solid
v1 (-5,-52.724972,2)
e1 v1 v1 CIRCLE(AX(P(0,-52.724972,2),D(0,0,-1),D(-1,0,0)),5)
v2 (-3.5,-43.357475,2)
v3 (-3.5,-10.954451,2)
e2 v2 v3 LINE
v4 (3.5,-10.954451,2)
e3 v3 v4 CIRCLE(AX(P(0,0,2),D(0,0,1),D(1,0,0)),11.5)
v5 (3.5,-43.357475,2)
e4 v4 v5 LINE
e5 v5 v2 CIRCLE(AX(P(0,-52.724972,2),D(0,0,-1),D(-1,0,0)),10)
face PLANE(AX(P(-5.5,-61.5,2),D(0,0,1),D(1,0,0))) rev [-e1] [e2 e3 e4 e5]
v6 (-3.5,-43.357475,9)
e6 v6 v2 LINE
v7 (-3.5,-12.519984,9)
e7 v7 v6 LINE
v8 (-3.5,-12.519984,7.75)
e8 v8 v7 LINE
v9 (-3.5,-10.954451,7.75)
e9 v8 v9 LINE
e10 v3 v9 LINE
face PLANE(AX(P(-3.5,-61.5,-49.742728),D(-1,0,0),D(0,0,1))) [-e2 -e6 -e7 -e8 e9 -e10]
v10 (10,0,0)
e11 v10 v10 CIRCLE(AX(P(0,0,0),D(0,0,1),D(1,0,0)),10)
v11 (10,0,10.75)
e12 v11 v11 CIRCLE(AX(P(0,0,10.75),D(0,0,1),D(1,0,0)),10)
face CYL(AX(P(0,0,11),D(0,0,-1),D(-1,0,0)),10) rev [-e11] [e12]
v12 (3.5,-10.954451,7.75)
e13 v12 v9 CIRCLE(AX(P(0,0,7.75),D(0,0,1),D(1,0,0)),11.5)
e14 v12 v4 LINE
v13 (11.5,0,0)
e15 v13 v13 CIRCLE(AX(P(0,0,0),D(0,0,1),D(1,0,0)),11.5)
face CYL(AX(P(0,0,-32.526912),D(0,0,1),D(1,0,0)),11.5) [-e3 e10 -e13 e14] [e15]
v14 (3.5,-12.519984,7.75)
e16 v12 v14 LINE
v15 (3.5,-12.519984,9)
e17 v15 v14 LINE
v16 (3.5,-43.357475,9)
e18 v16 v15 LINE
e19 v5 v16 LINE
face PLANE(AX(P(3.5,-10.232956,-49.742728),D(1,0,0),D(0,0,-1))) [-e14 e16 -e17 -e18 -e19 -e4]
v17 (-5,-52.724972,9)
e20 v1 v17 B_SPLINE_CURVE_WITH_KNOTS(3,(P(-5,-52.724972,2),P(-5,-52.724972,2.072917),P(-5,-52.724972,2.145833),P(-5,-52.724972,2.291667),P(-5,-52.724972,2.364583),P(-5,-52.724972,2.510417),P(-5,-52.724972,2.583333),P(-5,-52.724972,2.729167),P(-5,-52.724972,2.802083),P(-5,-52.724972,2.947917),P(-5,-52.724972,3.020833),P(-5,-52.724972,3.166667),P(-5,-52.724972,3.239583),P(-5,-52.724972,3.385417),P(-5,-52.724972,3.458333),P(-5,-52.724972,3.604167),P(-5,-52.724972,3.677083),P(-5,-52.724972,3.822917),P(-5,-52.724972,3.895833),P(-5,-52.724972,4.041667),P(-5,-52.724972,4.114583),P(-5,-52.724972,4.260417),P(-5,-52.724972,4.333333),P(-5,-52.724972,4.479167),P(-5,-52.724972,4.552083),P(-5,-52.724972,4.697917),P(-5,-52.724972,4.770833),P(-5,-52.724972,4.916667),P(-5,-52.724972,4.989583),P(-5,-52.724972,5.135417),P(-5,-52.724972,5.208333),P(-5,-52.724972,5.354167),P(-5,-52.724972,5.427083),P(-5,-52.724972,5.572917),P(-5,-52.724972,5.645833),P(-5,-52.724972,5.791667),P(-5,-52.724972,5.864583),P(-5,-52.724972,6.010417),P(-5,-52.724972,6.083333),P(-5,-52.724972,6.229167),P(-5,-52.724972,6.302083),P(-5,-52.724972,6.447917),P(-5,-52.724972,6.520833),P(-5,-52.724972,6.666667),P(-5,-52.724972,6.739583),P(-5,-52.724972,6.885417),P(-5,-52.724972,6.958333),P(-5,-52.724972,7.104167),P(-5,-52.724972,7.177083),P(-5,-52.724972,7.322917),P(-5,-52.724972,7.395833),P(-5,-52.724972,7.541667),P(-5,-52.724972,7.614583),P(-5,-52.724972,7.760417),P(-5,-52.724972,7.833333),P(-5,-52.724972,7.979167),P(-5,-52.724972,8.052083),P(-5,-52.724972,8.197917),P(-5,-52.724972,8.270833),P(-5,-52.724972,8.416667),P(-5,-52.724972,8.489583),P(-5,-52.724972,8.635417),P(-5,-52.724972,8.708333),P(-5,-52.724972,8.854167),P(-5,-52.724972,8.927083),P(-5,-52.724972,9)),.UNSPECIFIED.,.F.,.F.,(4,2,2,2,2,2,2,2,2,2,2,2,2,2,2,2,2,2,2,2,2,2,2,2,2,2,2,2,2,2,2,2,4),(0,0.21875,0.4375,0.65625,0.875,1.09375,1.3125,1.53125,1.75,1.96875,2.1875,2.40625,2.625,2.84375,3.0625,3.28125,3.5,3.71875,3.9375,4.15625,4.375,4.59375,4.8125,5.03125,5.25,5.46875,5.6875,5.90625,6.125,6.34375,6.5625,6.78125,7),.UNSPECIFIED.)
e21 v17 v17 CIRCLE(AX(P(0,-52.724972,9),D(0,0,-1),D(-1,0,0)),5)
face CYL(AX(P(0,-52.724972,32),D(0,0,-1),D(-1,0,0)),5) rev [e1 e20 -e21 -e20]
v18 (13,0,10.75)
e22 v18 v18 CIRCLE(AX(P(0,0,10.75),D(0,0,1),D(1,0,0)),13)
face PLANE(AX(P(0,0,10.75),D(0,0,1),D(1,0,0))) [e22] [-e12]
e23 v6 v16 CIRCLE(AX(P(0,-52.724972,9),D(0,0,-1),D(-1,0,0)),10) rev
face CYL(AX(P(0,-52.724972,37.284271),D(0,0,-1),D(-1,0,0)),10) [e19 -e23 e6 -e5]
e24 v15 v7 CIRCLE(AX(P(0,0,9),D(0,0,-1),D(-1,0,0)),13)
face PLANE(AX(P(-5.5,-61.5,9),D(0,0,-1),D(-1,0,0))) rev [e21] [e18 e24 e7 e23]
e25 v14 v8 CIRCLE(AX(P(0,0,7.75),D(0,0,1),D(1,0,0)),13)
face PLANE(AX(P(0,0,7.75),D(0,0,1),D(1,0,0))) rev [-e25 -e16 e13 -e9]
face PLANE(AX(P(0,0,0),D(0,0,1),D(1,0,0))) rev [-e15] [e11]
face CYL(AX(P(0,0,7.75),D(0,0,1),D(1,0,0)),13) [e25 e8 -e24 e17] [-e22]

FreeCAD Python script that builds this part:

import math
import FreeCAD as App
import Part
import Sketcher

V = App.Vector


def add_polygon(sketch, points):
    """Adds a closed chain of lines whose ends are joined by coincident constraints."""
    first, n = sketch.GeometryCount, len(points)
    for a, b in zip(points, points[1:] + points[:1]):
        sketch.addGeometry(Part.LineSegment(App.Vector(*a, 0), App.Vector(*b, 0)), False)
    for i in range(n):
        sketch.addConstraint(Sketcher.Constraint("Coincident", first + i, 2, first + (i + 1) % n, 1))

doc = App.newDocument("Part")
body = doc.addObject("PartDesign::Body", "Body")

sketch1 = doc.addObject("Sketcher::SketchObject", "Sketch")
body.addObject(sketch1)
sketch1.AttachmentSupport = (doc.XY_Plane, [""])
sketch1.MapMode = "FlatFace"
sketch1.addGeometry(Part.Circle(V(0, 0, 0), V(0, 0, 1), 10), False)
sketch1.addConstraint(Sketcher.Constraint("Coincident", 0, 3, -1, 1))
sketch1.addConstraint(Sketcher.Constraint("Diameter", 0, 20.0))
pad1 = doc.addObject("PartDesign::Pad", "Pad")
body.addObject(pad1)
pad1.Profile = sketch1
pad1.Length = 3
body2 = doc.addObject("PartDesign::Body", "Body001")

sketch2 = doc.addObject("Sketcher::SketchObject", "Sketch001")
body2.addObject(sketch2)
sketch2.AttachmentSupport = (doc.getObject("XY_Plane001"), [""])
sketch2.MapMode = "FlatFace"
sketch2.AttachmentOffset = App.Placement(V(0, 0, 3), App.Rotation())
sketch2.addGeometry(Part.Circle(V(0, 0, 0), V(0, 0, 1), 12), False)
sketch2.addGeometry(Part.Circle(V(0, 0, 0), V(0, 0, 1), 10), False)
sketch2.addConstraint(Sketcher.Constraint("Coincident", 0, 3, -1, 1))
sketch2.addConstraint(Sketcher.Constraint("Coincident", 1, 3, -1, 1))
sketch2.addConstraint(Sketcher.Constraint("Diameter", 0, 23.0))
sketch2.addConstraint(Sketcher.Constraint("Diameter", 1, 20.0))
pad2 = doc.addObject("PartDesign::Pad", "Pad001")
body2.addObject(pad2)
pad2.Profile = sketch2
pad2.Length = 8
body.AllowCompound = True
doc.recompute()

boolean = doc.addObject("PartDesign::Boolean", "Boolean")
body.addObject(boolean)
boolean.Type = "Fuse"
boolean.addObjects([body2])

sketch3 = doc.addObject("Sketcher::SketchObject", "Sketch002")
body.addObject(sketch3)
sketch3.AttachmentSupport = (doc.XY_Plane, [""])
sketch3.MapMode = "FlatFace"
sketch3.addGeometry(Part.Circle(V(0, 0, 0), V(0, 0, 1), 12), False)
sketch3.addGeometry(Part.Circle(V(0, 0, 0), V(0, 0, 1), 10), False)
sketch3.addConstraint(Sketcher.Constraint("Coincident", 0, 3, -1, 1))
sketch3.addConstraint(Sketcher.Constraint("Coincident", 1, 3, -1, 1))
sketch3.addConstraint(Sketcher.Constraint("Diameter", 0, 23.0))
sketch3.addConstraint(Sketcher.Constraint("Diameter", 1, 20.0))
pad3 = doc.addObject("PartDesign::Pad", "Pad002")
body.addObject(pad3)
pad3.Profile = sketch3
pad3.Length = 3

sketch4 = doc.addObject("Sketcher::SketchObject", "Sketch003")
body.addObject(sketch4)
sketch4.AttachmentSupport = (doc.XY_Plane, [""])
sketch4.MapMode = "FlatFace"
sketch4.AttachmentOffset = App.Placement(V(0, 0, 3), App.Rotation())
add_polygon(sketch4, [(-2, -11), (-2, -62), (2, -62), (2, -11)])
sketch4.addConstraint(Sketcher.Constraint("Vertical", 0))
sketch4.addConstraint(Sketcher.Constraint("Horizontal", 1))
sketch4.addConstraint(Sketcher.Constraint("Vertical", 2))
sketch4.addConstraint(Sketcher.Constraint("Horizontal", 3))
sketch4.addConstraint(Sketcher.Constraint("DistanceX", 1, 1, 1, 2, 5.0))
sketch4.addConstraint(Sketcher.Constraint("DistanceX", 0, 2, -1, 1, 2.5))
sketch4.addConstraint(Sketcher.Constraint("DistanceY", 0, 2, -1, 1, 61.5))
sketch4.addConstraint(Sketcher.Constraint("DistanceY", 0, 2, 0, 1, 50.622045))
pad4 = doc.addObject("PartDesign::Pad", "Pad003")
body.addObject(pad4)
pad4.Profile = sketch4
pad4.Length = 3
pad4.Reversed = True

sketch5 = doc.addObject("Sketcher::SketchObject", "Sketch004")
body.addObject(sketch5)
sketch5.AttachmentSupport = (doc.XY_Plane, [""])
sketch5.MapMode = "FlatFace"
sketch5.AttachmentOffset = App.Placement(V(0, 0, 3), App.Rotation())
add_polygon(sketch5, [(-2, -11), (-2, -62), (2, -62), (2, -11)])
sketch5.addConstraint(Sketcher.Constraint("Vertical", 0))
sketch5.addConstraint(Sketcher.Constraint("Horizontal", 1))
sketch5.addConstraint(Sketcher.Constraint("Vertical", 2))
sketch5.addConstraint(Sketcher.Constraint("Horizontal", 3))
sketch5.addConstraint(Sketcher.Constraint("DistanceX", 1, 1, 1, 2, 5.0))
sketch5.addConstraint(Sketcher.Constraint("DistanceX", 0, 2, -1, 1, 2.5))
sketch5.addConstraint(Sketcher.Constraint("DistanceY", 0, 2, -1, 1, 61.5))
sketch5.addConstraint(Sketcher.Constraint("DistanceY", 0, 2, 0, 1, 50.275028))
pad5 = doc.addObject("PartDesign::Pad", "Pad004")
body.addObject(pad5)
pad5.Profile = sketch5
pad5.Length = 8

sketch6 = doc.addObject("Sketcher::SketchObject", "Sketch005")
body.addObject(sketch6)
sketch6.AttachmentSupport = (doc.YZ_Plane, [""])
sketch6.MapMode = "FlatFace"
sketch6.AttachmentOffset = App.Placement(V(0, 0, 2.5), App.Rotation())
add_polygon(sketch6, [(-11.2, 11), (-61.5, 11), (-61.5, 9), (-11.2, 9)])
add_polygon(sketch6, [(-11.2, 2), (-61.5, 2), (-61.5, 0), (-11.2, 0)])
sketch6.addConstraint(Sketcher.Constraint("Horizontal", 0))
sketch6.addConstraint(Sketcher.Constraint("Vertical", 1))
sketch6.addConstraint(Sketcher.Constraint("Horizontal", 2))
sketch6.addConstraint(Sketcher.Constraint("Vertical", 3))
sketch6.addConstraint(Sketcher.Constraint("Horizontal", 4))
sketch6.addConstraint(Sketcher.Constraint("Vertical", 5))
sketch6.addConstraint(Sketcher.Constraint("Horizontal", 6))
sketch6.addConstraint(Sketcher.Constraint("Vertical", 7))
sketch6.addConstraint(Sketcher.Constraint("PointOnObject", 5, 2, -1))
sketch6.addConstraint(Sketcher.Constraint("Vertical", 1, 2, 4, 2))
sketch6.addConstraint(Sketcher.Constraint("Vertical", 3, 2, 6, 2))
sketch6.addConstraint(Sketcher.Constraint("Equal", 3, 5))
sketch6.addConstraint(Sketcher.Constraint("DistanceY", 1, 2, 1, 1, 2.0))
sketch6.addConstraint(Sketcher.Constraint("DistanceY", -1, 1, 0, 2, 11.0))
sketch6.addConstraint(Sketcher.Constraint("DistanceX", 0, 2, -1, 1, 61.5))
sketch6.addConstraint(Sketcher.Constraint("DistanceX", 0, 2, 0, 1, 50.275028))
pocket1 = doc.addObject("PartDesign::Pocket", "Pocket")
body.addObject(pocket1)
pocket1.Profile = sketch6
pocket1.Length = 8

sketch7 = doc.addObject("Sketcher::SketchObject", "Sketch006")
body.addObject(sketch7)
sketch7.AttachmentSupport = (doc.XY_Plane, [""])
sketch7.MapMode = "FlatFace"
sketch7.AttachmentOffset = App.Placement(V(0, 0, 9), App.Rotation())
add_polygon(sketch7, [(-4, -62), (4, -62), (4, -10), (-4, -10)])
sketch7.addConstraint(Sketcher.Constraint("Horizontal", 0))
sketch7.addConstraint(Sketcher.Constraint("Vertical", 1))
sketch7.addConstraint(Sketcher.Constraint("Horizontal", 2))
sketch7.addConstraint(Sketcher.Constraint("Vertical", 3))
sketch7.addConstraint(Sketcher.Constraint("DistanceX", 0, 1, 0, 2, 7.0))
sketch7.addConstraint(Sketcher.Constraint("DistanceX", -1, 1, 0, 2, 3.5))
sketch7.addConstraint(Sketcher.Constraint("DistanceY", 0, 2, -1, 1, 61.5))
sketch7.addConstraint(Sketcher.Constraint("DistanceY", 1, 1, 1, 2, 51.267044))
pad6 = doc.addObject("PartDesign::Pad", "Pad005")
body.addObject(pad6)
pad6.Profile = sketch7
pad6.Length = 7
pad6.Reversed = True

sketch8 = doc.addObject("Sketcher::SketchObject", "Sketch007")
body.addObject(sketch8)
sketch8.AttachmentSupport = (doc.XY_Plane, [""])
sketch8.MapMode = "FlatFace"
sketch8.AttachmentOffset = App.Placement(V(0, 0, 2), App.Rotation())
sketch8.addGeometry(Part.Circle(V(0, -53, 0), V(0, 0, 1), 10), False)
sketch8.addConstraint(Sketcher.Constraint("PointOnObject", 0, 3, -2))
sketch8.addConstraint(Sketcher.Constraint("Diameter", 0, 20.0))
sketch8.addConstraint(Sketcher.Constraint("DistanceY", 0, 3, -1, 1, 52.724972))
pad7 = doc.addObject("PartDesign::Pad", "Pad006")
body.addObject(pad7)
pad7.Profile = sketch8
pad7.Length = 7

sketch9 = doc.addObject("Sketcher::SketchObject", "Sketch008")
body.addObject(sketch9)
sketch9.AttachmentSupport = (doc.XY_Plane, [""])
sketch9.MapMode = "FlatFace"
sketch9.AttachmentOffset = App.Placement(V(0, 0, 2), App.Rotation())
sketch9.addGeometry(Part.Circle(V(0, -53, 0), V(0, 0, 1), 5), False)
sketch9.addConstraint(Sketcher.Constraint("PointOnObject", 0, 3, -2))
sketch9.addConstraint(Sketcher.Constraint("Diameter", 0, 10.0))
sketch9.addConstraint(Sketcher.Constraint("DistanceY", 0, 3, -1, 1, 52.724972))
pocket2 = doc.addObject("PartDesign::Pocket", "Pocket001")
body.addObject(pocket2)
pocket2.Profile = sketch9
pocket2.Length = 30
pocket2.Reversed = True

sketch10 = doc.addObject("Sketcher::SketchObject", "Sketch009")
body.addObject(sketch10)
sketch10.AttachmentSupport = (doc.XY_Plane, [""])
sketch10.MapMode = "FlatFace"
sketch10.AttachmentOffset = App.Placement(V(0, 0, 11), App.Rotation())
sketch10.addGeometry(Part.LineSegment(V(-2, -11, 0), V(2, -11, 0)), False)
sketch10.addGeometry(Part.ArcOfCircle(Part.Circle(V(0, 0, 0), V(0, 0, 1), 12), math.radians(-77), math.radians(257)), False)
sketch10.addGeometry(Part.Circle(V(0, 0, 0), V(0, 0, 1), 10), False)
sketch10.addConstraint(Sketcher.Constraint("Coincident", 0, 1, 1, 2))
sketch10.addConstraint(Sketcher.Constraint("Coincident", 1, 1, 0, 2))
sketch10.addConstraint(Sketcher.Constraint("Horizontal", 0))
sketch10.addConstraint(Sketcher.Constraint("Coincident", 1, 3, -1, 1))
sketch10.addConstraint(Sketcher.Constraint("Coincident", 2, 3, -1, 1))
sketch10.addConstraint(Sketcher.Constraint("Diameter", 2, 20.0))
sketch10.addConstraint(Sketcher.Constraint("Radius", 1, 11.5))
sketch10.addConstraint(Sketcher.Constraint("DistanceX", 0, 1, 0, 2, 5.0))
pad8 = doc.addObject("PartDesign::Pad", "Pad007")
body.addObject(pad8)
pad8.Profile = sketch10
pad8.Length = 1.25

sketch11 = doc.addObject("Sketcher::SketchObject", "Sketch010")
body.addObject(sketch11)
sketch11.AttachmentSupport = (doc.XY_Plane, [""])
sketch11.MapMode = "FlatFace"
sketch11.AttachmentOffset = App.Placement(V(0, 0, 10.75), App.Rotation())
sketch11.addGeometry(Part.LineSegment(V(-2, -11, 0), V(2, -11, 0)), False)
sketch11.addGeometry(Part.ArcOfCircle(Part.Circle(V(0, 0, 0), V(0, 0, 1), 12), math.radians(-77), math.radians(257)), False)
sketch11.addGeometry(Part.Circle(V(0, 0, 0), V(0, 0, 1), 10), False)
sketch11.addConstraint(Sketcher.Constraint("Coincident", 0, 1, 1, 2))
sketch11.addConstraint(Sketcher.Constraint("Coincident", 1, 1, 0, 2))
sketch11.addConstraint(Sketcher.Constraint("Horizontal", 0))
sketch11.addConstraint(Sketcher.Constraint("Coincident", 1, 3, -1, 1))
sketch11.addConstraint(Sketcher.Constraint("Coincident", 2, 3, -1, 1))
sketch11.addConstraint(Sketcher.Constraint("Diameter", 2, 20.0))
sketch11.addConstraint(Sketcher.Constraint("Radius", 1, 11.5))
sketch11.addConstraint(Sketcher.Constraint("DistanceX", 0, 1, 0, 2, 5.0))
pocket3 = doc.addObject("PartDesign::Pocket", "Pocket002")
body.addObject(pocket3)
pocket3.Profile = sketch11
pocket3.Length = 1.5
pocket3.Reversed = True

sketch12 = doc.addObject("Sketcher::SketchObject", "Sketch011")
body.addObject(sketch12)
sketch12.AttachmentSupport = (doc.XY_Plane, [""])
sketch12.MapMode = "FlatFace"
sketch12.AttachmentOffset = App.Placement(V(0, 0, 7.75), App.Rotation())
sketch12.addGeometry(Part.Circle(V(0, 0, 0), V(0, 0, 1), 13), False)
sketch12.addGeometry(Part.ArcOfCircle(Part.Circle(V(0, 0, 0), V(0, 0, 1), 12), math.radians(-77), math.radians(257)), False)
sketch12.addGeometry(Part.LineSegment(V(2, -11, 0), V(-2, -11, 0)), False)
sketch12.addConstraint(Sketcher.Constraint("Coincident", 1, 1, 2, 1))
sketch12.addConstraint(Sketcher.Constraint("Coincident", 2, 2, 1, 2))
sketch12.addConstraint(Sketcher.Constraint("Horizontal", 2))
sketch12.addConstraint(Sketcher.Constraint("Coincident", 0, 3, -1, 1))
sketch12.addConstraint(Sketcher.Constraint("Coincident", 1, 3, -1, 1))
sketch12.addConstraint(Sketcher.Constraint("Diameter", 0, 26.0))
sketch12.addConstraint(Sketcher.Constraint("Radius", 1, 11.5))
sketch12.addConstraint(Sketcher.Constraint("DistanceX", 2, 2, 2, 1, 5.0))
pad9 = doc.addObject("PartDesign::Pad", "Pad008")
body.addObject(pad9)
pad9.Profile = sketch12
pad9.Length = 3

sketch13 = doc.addObject("Sketcher::SketchObject", "Sketch012")
body.addObject(sketch13)
sketch13.AttachmentSupport = (doc.XY_Plane, [""])
sketch13.MapMode = "FlatFace"
sketch13.AttachmentOffset = App.Placement(V(0, 0, -7), App.Rotation())
sketch13.addGeometry(Part.Circle(V(0, 0, 0), V(0, 0, 1), 10), False)
sketch13.addConstraint(Sketcher.Constraint("Coincident", 0, 3, -1, 1))
sketch13.addConstraint(Sketcher.Constraint("Diameter", 0, 20.0))
pocket4 = doc.addObject("PartDesign::Pocket", "Pocket003")
body.addObject(pocket4)
pocket4.Profile = sketch13
pocket4.Length = 10
pocket4.Reversed = True

sketch14 = doc.addObject("Sketcher::SketchObject", "Sketch013")
body.addObject(sketch14)
sketch14.AttachmentSupport = (doc.XY_Plane, [""])
sketch14.MapMode = "FlatFace"
sketch14.addGeometry(Part.Circle(V(0, 0, 0), V(0, 0, 1), 12), False)
sketch14.addGeometry(Part.Circle(V(0, 0, 0), V(0, 0, 1), 10), False)
sketch14.addConstraint(Sketcher.Constraint("Coincident", 0, 3, -1, 1))
sketch14.addConstraint(Sketcher.Constraint("Coincident", 1, 3, -1, 1))
sketch14.addConstraint(Sketcher.Constraint("Diameter", 0, 23.0))
sketch14.addConstraint(Sketcher.Constraint("Diameter", 1, 20.0))
pad10 = doc.addObject("PartDesign::Pad", "Pad009")
body.addObject(pad10)
pad10.Profile = sketch14
pad10.Length = 7.75
body3 = doc.addObject("PartDesign::Body", "Body002")

sketch15 = doc.addObject("Sketcher::SketchObject", "Sketch014")
body3.addObject(sketch15)
sketch15.AttachmentSupport = (doc.getObject("XY_Plane002"), [""])
sketch15.MapMode = "FlatFace"
sketch15.AttachmentOffset = App.Placement(V(0, 0, 11), App.Rotation())
add_polygon(sketch15, [(11.5, 3), (11.5, -3), (12.1, -3), (12.1, 3)])
sketch15.addConstraint(Sketcher.Constraint("Vertical", 0))
sketch15.addConstraint(Sketcher.Constraint("Horizontal", 1))
sketch15.addConstraint(Sketcher.Constraint("Vertical", 2))
sketch15.addConstraint(Sketcher.Constraint("Horizontal", 3))
sketch15.addConstraint(Sketcher.Constraint("DistanceY", 0, 2, 0, 1, 6.0))
sketch15.addConstraint(Sketcher.Constraint("DistanceY", 0, 2, -1, 1, 3.0))
sketch15.addConstraint(Sketcher.Constraint("DistanceX", -1, 1, 0, 2, 11.5))
sketch15.addConstraint(Sketcher.Constraint("DistanceX", 1, 1, 1, 2, 0.560243))
pad11 = doc.addObject("PartDesign::Pad", "Pad010")
body3.addObject(pad11)
pad11.Profile = sketch15
pad11.Length = 8
pad11.Reversed = True

sketch16 = doc.addObject("Sketcher::SketchObject", "Sketch015")
body3.addObject(sketch16)
sketch16.AttachmentSupport = (doc.getObject("XY_Plane002"), [""])
sketch16.MapMode = "FlatFace"
sketch16.AttachmentOffset = App.Placement(V(0, 0, 11), App.Rotation())
add_polygon(sketch16, [(11.5, 3), (11.5, -3), (12.1, -3), (12.1, 3)])
sketch16.addConstraint(Sketcher.Constraint("Vertical", 0))
sketch16.addConstraint(Sketcher.Constraint("Horizontal", 1))
sketch16.addConstraint(Sketcher.Constraint("Vertical", 2))
sketch16.addConstraint(Sketcher.Constraint("Horizontal", 3))
sketch16.addConstraint(Sketcher.Constraint("DistanceY", 0, 2, 0, 1, 6.0))
sketch16.addConstraint(Sketcher.Constraint("DistanceY", 0, 2, -1, 1, 3.0))
sketch16.addConstraint(Sketcher.Constraint("DistanceX", -1, 1, 0, 2, 11.5))
sketch16.addConstraint(Sketcher.Constraint("DistanceX", 1, 1, 1, 2, 0.560243))
pocket5 = doc.addObject("PartDesign::Pocket", "Pocket004")
body3.addObject(pocket5)
pocket5.Profile = sketch16
pocket5.Length = 8

doc.recompute()
